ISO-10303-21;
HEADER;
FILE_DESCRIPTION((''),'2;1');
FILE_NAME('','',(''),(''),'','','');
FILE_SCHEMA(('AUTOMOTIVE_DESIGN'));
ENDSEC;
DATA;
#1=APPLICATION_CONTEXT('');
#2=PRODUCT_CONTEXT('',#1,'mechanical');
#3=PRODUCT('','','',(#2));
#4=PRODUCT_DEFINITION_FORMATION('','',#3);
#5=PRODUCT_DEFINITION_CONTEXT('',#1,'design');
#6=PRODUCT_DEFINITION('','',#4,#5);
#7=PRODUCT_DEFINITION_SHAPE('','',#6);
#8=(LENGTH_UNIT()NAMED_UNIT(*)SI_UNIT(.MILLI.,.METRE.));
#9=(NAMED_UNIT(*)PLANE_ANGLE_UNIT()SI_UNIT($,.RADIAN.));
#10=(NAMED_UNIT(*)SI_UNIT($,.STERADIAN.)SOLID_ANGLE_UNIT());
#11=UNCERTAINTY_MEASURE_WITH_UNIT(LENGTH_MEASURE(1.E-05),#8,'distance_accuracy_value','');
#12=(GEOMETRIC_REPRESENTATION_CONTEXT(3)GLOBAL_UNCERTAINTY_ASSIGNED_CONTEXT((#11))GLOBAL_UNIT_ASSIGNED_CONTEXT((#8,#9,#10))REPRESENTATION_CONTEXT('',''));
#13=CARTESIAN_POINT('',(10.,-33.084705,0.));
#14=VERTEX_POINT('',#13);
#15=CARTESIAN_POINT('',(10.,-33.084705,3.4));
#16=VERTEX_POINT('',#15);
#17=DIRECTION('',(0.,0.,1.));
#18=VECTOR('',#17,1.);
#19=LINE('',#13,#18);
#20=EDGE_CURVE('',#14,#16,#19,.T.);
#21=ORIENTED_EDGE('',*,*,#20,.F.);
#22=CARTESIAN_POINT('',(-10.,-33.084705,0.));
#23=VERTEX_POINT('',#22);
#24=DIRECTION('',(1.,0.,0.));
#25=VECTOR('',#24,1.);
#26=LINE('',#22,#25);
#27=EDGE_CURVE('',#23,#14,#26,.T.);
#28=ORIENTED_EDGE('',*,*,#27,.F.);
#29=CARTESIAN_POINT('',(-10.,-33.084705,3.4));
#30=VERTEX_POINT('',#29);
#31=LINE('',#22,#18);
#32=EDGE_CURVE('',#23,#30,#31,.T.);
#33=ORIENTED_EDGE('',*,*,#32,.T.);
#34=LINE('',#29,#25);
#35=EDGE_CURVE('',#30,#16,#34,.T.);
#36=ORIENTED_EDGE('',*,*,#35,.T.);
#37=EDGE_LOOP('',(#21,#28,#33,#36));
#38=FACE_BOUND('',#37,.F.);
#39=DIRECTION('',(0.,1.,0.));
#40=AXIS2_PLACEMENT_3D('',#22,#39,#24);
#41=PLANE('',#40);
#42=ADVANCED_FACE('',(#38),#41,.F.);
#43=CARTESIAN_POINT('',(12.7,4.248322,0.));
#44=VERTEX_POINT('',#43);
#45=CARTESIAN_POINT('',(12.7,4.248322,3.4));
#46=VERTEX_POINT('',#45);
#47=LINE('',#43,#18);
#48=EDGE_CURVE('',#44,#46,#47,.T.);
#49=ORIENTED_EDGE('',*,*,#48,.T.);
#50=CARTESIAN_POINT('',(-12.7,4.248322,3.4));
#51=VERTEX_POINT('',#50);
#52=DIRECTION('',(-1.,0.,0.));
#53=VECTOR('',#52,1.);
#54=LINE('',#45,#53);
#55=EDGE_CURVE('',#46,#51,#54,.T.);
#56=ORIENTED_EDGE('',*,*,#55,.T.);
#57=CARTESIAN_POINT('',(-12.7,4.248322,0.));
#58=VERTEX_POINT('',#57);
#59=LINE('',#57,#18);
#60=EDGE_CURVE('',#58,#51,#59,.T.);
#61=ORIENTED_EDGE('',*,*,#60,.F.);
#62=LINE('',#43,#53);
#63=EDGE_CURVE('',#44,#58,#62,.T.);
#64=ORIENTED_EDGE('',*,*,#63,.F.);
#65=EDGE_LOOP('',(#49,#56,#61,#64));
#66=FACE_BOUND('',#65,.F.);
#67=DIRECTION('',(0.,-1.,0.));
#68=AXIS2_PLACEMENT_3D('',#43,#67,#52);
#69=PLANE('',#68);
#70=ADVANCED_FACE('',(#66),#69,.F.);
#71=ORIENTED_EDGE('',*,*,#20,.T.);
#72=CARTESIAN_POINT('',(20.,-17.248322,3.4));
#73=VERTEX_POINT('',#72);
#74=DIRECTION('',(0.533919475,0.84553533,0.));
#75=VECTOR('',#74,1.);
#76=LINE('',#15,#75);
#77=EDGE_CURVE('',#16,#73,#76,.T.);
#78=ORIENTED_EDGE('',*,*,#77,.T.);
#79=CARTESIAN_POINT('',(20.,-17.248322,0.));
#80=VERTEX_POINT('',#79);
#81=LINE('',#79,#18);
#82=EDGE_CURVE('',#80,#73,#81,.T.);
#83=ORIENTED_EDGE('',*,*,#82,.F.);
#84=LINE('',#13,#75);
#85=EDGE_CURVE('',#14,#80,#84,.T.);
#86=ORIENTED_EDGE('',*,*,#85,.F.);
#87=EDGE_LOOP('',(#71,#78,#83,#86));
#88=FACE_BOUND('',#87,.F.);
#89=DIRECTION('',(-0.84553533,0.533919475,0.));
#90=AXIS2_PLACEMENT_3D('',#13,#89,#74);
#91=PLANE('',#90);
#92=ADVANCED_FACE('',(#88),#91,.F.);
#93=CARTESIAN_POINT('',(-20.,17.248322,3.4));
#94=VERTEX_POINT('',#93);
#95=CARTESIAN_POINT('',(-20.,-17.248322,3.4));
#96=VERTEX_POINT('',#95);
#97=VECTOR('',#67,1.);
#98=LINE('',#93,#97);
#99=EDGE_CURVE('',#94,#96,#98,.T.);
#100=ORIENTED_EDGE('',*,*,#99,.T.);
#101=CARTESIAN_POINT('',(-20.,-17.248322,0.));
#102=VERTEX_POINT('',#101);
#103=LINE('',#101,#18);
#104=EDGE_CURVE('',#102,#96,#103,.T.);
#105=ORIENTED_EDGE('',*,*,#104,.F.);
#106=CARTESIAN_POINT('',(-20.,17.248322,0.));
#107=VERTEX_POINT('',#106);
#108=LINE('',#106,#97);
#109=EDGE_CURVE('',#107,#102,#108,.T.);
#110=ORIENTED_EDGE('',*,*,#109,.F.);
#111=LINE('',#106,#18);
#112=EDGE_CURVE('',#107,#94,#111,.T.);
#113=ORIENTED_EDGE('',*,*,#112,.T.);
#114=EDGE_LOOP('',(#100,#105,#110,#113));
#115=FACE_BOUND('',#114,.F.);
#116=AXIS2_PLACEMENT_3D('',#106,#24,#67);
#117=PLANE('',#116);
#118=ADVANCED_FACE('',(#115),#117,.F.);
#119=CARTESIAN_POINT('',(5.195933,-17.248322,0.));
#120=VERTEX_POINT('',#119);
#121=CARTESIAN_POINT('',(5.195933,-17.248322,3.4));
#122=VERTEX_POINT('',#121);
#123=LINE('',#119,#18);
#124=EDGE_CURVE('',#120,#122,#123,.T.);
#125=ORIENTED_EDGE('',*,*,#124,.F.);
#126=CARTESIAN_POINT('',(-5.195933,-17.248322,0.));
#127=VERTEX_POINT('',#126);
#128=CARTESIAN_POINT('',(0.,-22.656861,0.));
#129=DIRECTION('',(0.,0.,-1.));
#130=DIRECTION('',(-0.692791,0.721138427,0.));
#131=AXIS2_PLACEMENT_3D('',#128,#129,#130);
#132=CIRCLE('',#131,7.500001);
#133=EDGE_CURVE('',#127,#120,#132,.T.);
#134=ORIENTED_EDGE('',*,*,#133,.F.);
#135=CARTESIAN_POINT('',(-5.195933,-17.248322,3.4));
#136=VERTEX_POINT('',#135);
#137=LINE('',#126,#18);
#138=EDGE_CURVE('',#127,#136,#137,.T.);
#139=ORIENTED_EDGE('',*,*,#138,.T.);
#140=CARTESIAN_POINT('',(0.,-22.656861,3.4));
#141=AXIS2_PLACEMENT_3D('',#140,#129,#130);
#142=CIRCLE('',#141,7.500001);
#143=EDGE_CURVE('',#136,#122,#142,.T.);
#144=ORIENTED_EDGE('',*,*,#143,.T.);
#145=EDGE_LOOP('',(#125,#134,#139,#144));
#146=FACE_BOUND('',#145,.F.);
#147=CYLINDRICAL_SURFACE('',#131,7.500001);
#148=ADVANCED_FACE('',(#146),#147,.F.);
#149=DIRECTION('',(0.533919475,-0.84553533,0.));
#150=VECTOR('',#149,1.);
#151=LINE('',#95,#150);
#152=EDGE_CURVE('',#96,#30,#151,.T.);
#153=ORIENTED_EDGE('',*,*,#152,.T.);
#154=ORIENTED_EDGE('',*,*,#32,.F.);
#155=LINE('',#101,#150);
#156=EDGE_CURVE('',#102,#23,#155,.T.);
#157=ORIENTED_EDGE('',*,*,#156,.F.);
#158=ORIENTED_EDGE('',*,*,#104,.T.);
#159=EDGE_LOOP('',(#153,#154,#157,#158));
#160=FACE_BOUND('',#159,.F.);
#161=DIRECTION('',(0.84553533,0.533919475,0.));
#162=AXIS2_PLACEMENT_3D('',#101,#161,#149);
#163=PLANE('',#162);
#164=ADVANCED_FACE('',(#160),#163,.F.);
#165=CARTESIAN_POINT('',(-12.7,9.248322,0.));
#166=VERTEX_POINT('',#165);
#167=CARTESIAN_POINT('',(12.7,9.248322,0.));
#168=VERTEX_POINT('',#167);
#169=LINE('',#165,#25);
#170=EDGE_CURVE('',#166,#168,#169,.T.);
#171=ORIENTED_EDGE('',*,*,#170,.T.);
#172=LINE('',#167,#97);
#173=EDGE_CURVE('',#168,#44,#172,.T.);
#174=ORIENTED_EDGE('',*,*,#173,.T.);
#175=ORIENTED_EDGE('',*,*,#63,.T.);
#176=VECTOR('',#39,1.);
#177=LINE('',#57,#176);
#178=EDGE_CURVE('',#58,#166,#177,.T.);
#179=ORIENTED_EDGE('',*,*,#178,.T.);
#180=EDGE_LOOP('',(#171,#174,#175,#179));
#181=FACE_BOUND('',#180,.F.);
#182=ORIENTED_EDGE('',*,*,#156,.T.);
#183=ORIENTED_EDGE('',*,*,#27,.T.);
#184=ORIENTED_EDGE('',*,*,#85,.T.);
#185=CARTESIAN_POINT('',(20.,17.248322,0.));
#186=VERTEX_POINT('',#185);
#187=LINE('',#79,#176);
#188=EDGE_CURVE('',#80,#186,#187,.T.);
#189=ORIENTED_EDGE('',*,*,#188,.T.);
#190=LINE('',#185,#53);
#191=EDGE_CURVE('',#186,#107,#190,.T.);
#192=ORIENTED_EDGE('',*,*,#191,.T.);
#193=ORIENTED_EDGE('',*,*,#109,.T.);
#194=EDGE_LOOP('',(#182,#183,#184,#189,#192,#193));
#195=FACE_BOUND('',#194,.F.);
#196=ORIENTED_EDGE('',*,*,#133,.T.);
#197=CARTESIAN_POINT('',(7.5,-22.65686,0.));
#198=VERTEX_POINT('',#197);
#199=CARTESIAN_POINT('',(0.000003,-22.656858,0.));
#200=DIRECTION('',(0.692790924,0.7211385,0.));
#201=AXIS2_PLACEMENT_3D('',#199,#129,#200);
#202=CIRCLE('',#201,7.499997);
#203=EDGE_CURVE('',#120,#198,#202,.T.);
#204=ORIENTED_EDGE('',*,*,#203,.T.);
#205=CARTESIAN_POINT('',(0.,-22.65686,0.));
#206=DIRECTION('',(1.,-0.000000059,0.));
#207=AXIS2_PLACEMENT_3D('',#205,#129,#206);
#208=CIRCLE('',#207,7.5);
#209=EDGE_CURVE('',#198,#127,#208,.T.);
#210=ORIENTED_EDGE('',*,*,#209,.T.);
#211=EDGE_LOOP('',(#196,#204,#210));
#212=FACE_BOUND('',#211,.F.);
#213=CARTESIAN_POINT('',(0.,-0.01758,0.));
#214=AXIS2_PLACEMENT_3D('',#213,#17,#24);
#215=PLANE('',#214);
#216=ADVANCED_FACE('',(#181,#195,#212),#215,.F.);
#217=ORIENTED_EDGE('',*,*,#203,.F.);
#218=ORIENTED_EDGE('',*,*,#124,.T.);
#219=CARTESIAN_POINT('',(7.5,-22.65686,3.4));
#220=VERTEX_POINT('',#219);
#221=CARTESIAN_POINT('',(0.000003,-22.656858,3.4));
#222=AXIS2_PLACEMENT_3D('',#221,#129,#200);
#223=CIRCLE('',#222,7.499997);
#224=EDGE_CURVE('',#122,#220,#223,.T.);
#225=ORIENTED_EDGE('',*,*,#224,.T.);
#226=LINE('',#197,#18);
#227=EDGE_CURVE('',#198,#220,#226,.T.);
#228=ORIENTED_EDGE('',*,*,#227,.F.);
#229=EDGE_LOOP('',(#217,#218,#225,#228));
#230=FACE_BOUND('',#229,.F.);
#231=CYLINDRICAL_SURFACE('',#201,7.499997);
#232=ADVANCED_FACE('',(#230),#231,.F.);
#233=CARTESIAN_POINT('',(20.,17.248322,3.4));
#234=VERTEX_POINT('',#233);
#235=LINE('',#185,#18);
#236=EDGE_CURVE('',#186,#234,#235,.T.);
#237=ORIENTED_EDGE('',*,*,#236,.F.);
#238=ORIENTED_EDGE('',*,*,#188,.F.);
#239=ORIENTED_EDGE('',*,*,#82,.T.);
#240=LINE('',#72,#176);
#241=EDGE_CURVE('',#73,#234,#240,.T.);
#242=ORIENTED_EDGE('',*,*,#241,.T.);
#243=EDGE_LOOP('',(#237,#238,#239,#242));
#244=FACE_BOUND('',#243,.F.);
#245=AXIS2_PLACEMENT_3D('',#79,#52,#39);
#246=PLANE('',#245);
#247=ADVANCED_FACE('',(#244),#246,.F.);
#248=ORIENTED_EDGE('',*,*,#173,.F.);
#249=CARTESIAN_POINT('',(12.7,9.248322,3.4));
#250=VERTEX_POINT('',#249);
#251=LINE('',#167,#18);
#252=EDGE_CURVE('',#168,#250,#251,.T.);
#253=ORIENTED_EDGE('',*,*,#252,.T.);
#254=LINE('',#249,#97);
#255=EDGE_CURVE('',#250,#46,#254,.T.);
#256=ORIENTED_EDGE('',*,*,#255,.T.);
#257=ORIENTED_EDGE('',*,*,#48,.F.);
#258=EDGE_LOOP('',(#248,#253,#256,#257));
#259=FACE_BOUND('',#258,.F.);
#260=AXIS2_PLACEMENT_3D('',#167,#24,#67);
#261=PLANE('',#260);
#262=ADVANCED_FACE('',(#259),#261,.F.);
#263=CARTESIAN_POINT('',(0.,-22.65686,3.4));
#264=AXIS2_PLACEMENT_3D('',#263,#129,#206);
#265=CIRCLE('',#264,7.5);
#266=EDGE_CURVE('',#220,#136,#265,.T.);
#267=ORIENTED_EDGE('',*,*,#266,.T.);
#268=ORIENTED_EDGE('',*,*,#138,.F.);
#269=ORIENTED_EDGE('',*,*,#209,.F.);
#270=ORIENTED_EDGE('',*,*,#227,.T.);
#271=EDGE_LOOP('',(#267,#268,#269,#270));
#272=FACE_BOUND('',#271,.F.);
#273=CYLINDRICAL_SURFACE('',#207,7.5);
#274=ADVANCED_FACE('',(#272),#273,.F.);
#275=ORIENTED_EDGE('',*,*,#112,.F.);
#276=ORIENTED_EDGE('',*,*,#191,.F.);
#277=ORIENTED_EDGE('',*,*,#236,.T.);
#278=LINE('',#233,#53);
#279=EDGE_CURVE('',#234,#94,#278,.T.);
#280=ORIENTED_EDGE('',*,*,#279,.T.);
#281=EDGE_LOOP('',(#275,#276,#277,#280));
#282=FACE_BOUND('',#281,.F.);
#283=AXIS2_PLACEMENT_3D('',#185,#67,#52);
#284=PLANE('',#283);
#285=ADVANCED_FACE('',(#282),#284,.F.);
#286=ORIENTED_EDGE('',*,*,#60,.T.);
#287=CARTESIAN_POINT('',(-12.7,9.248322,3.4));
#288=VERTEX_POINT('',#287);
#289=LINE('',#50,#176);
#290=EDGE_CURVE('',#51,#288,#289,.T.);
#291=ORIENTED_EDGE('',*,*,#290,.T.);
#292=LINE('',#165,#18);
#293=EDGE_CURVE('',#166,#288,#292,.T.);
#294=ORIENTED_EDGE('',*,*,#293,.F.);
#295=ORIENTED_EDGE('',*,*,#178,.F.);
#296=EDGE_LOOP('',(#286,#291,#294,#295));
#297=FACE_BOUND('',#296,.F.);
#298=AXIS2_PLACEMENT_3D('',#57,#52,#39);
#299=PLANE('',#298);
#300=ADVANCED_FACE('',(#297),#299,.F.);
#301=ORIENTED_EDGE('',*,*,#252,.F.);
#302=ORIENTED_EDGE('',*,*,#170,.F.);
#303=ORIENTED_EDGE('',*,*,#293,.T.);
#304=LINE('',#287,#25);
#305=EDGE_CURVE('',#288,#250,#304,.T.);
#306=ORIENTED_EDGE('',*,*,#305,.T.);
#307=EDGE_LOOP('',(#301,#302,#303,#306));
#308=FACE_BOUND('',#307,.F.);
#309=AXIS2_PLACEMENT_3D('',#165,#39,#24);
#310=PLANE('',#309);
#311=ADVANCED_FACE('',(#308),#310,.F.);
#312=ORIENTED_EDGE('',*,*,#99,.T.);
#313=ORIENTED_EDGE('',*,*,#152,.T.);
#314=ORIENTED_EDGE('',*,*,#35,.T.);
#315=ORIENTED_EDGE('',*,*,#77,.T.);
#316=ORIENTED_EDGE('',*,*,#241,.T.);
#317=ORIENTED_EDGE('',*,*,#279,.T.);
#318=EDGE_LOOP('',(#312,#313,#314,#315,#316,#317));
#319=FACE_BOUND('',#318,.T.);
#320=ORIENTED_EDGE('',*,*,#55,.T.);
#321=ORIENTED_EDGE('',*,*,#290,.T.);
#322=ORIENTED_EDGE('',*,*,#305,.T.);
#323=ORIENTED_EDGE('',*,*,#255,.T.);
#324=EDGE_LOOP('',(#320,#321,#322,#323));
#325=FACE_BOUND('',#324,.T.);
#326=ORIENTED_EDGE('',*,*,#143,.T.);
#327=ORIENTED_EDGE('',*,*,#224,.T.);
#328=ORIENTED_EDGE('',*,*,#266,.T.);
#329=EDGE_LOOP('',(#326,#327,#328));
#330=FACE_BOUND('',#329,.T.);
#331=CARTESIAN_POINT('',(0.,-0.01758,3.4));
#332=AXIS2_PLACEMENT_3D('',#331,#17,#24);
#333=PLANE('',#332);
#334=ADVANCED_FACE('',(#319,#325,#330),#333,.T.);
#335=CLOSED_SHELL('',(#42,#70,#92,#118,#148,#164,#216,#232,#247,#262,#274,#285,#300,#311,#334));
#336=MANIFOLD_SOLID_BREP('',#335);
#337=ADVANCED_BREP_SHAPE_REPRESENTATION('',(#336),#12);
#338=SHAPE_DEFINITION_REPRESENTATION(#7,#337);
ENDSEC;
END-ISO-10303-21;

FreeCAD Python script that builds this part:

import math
import FreeCAD as App
import Part
import Sketcher
Q = App.Units.Quantity


def add_polygon(sketch, points):
    """Adds a closed chain of lines whose ends are joined by coincident constraints."""
    first, n = sketch.GeometryCount, len(points)
    for a, b in zip(points, points[1:] + points[:1]):
        sketch.addGeometry(Part.LineSegment(App.Vector(*a, 0), App.Vector(*b, 0)), False)
    for i in range(n):
        sketch.addConstraint(Sketcher.Constraint("Coincident", first + i, 2, first + (i + 1) % n, 1))

doc = App.newDocument("Part")
body = doc.addObject("PartDesign::Body", "Body")

sketch1 = body.newObject("Sketcher::SketchObject", "Sketch")
sketch1.AttachmentSupport = (doc.getObject("XY_Plane"), [""])
sketch1.MapMode = "FlatFace"
add_polygon(sketch1, [(20, -17), (20, 17), (-20, 17), (-20, -17), (-10, -33), (10, -33)])
sketch1.addGeometry(Part.ArcOfCircle(Part.Circle(App.Vector(0, -23, 0), App.Vector(0, 0, 1), 8), math.radians(46), math.radians(134)), False)
sketch1.addGeometry(Part.ArcOfCircle(Part.Circle(App.Vector(0, -23, 0), App.Vector(0, 0, 1), 7), math.radians(0), math.radians(46)), False)
sketch1.addGeometry(Part.ArcOfCircle(Part.Circle(App.Vector(0, -23, 0), App.Vector(0, 0, 1), 7), math.radians(134), math.radians(360)), False)
add_polygon(sketch1, [(-13, 9), (13, 9), (13, 4), (-13, 4)])
sketch1.addConstraint([
    Sketcher.Constraint("Tangent", 6, 1, 7, 2),
    Sketcher.Constraint("Tangent", 7, 1, 8, 2),
    Sketcher.Constraint("Tangent", 8, 1, 6, 2),
    Sketcher.Constraint("Vertical", 0),
    Sketcher.Constraint("Horizontal", 1),
    Sketcher.Constraint("Vertical", 2),
    Sketcher.Constraint("Horizontal", 4),
    Sketcher.Constraint("Horizontal", 9),
    Sketcher.Constraint("Vertical", 10),
    Sketcher.Constraint("Horizontal", 11),
    Sketcher.Constraint("Vertical", 12),
    Sketcher.Constraint("Symmetric", 0, 2, 2, 2, -1, 1),
    Sketcher.Constraint("Symmetric", 6, 1, 8, 1, -2),
    Sketcher.Constraint("Horizontal", 2, 2, 5, 2),
    Sketcher.Constraint("Horizontal", 5, 2, 6, 1),
    Sketcher.Constraint("Horizontal", 8, 3, 7, 1),
    Sketcher.Constraint("Equal", 3, 5),
    Sketcher.Constraint("Radius", 6, Q("7.500001 mm")),
    Sketcher.Constraint("DistanceX", 1, 2, 1, 1, Q("40 mm")),
    Sketcher.Constraint("DistanceX", 4, 1, 4, 2, Q("20 mm")),
    Sketcher.Constraint("DistanceY", 10, 2, 10, 1, Q("5 mm")),
    Sketcher.Constraint("DistanceX", 9, 1, 9, 2, Q("25.4 mm")),
    Sketcher.Constraint("DistanceY", 9, 2, 0, 2, Q("8 mm")),
    Sketcher.Constraint("DistanceX", -1, 1, 9, 2, Q("12.7 mm")),
    Sketcher.Constraint("DistanceY", 0, 1, 0, 2, Q("34.496644 mm")),
    Sketcher.Constraint("DistanceY", 6, 3, -1, 1, Q("22.656861 mm")),
    Sketcher.Constraint("Distance", 3, Q("18.729416 mm")),
])
pad1 = body.newObject("PartDesign::Pad", "Pad")
pad1.Profile = sketch1
pad1.Length = 3.4

sketch2 = body.newObject("Sketcher::SketchObject", "Sketch001")
sketch2.AttachmentSupport = (doc.getObject("XY_Plane"), [""])
sketch2.MapMode = "FlatFace"
add_polygon(sketch2, [(10, -33), (20, -17), (20, 17), (-20, 17), (-20, -17), (-10, -33)])
sketch2.addGeometry(Part.ArcOfCircle(Part.Circle(App.Vector(0, -23, 0), App.Vector(0, 0, 1), 7), math.radians(0), math.radians(46)), False)
sketch2.addGeometry(Part.ArcOfCircle(Part.Circle(App.Vector(0, -23, 0), App.Vector(0, 0, 1), 7), math.radians(134), math.radians(360)), False)
sketch2.addGeometry(Part.ArcOfCircle(Part.Circle(App.Vector(0, -23, 0), App.Vector(0, 0, 1), 8), math.radians(46), math.radians(134)), False)
add_polygon(sketch2, [(-13, 9), (13, 9), (13, 4), (-13, 4)])
sketch2.addConstraint([
    Sketcher.Constraint("Tangent", 6, 1, 7, 2),
    Sketcher.Constraint("Tangent", 7, 1, 8, 2),
    Sketcher.Constraint("Tangent", 8, 1, 6, 2),
    Sketcher.Constraint("Vertical", 1),
    Sketcher.Constraint("Horizontal", 2),
    Sketcher.Constraint("Vertical", 3),
    Sketcher.Constraint("Horizontal", 5),
    Sketcher.Constraint("Horizontal", 9),
    Sketcher.Constraint("Vertical", 10),
    Sketcher.Constraint("Horizontal", 11),
    Sketcher.Constraint("Vertical", 12),
    Sketcher.Constraint("Symmetric", 0, 2, 2, 2, -1, 1),
    Sketcher.Constraint("Symmetric", 7, 1, 8, 1, -2),
    Sketcher.Constraint("Horizontal", 0, 2, 3, 2),
    Sketcher.Constraint("Horizontal", 8, 3, 6, 1),
    Sketcher.Constraint("Horizontal", 3, 2, 7, 1),
    Sketcher.Constraint("Equal", 0, 4),
    Sketcher.Constraint("Radius", 7, Q("7.5 mm")),
    Sketcher.Constraint("DistanceX", 2, 2, 2, 1, Q("40 mm")),
    Sketcher.Constraint("DistanceX", 5, 1, 5, 2, Q("20 mm")),
    Sketcher.Constraint("DistanceY", 10, 2, 10, 1, Q("5 mm")),
    Sketcher.Constraint("DistanceX", 9, 1, 9, 2, Q("25.4 mm")),
    Sketcher.Constraint("DistanceY", 9, 2, 1, 2, Q("8 mm")),
    Sketcher.Constraint("DistanceX", -1, 1, 9, 2, Q("12.7 mm")),
    Sketcher.Constraint("DistanceY", 1, 1, 1, 2, Q("34.496644 mm")),
    Sketcher.Constraint("DistanceY", 6, 3, -1, 1, Q("22.656858 mm")),
    Sketcher.Constraint("Distance", 0, Q("18.729416 mm")),
])
pad2 = body.newObject("PartDesign::Pad", "Pad001")
pad2.Profile = sketch2
pad2.Length = 3.4

doc.recompute()
